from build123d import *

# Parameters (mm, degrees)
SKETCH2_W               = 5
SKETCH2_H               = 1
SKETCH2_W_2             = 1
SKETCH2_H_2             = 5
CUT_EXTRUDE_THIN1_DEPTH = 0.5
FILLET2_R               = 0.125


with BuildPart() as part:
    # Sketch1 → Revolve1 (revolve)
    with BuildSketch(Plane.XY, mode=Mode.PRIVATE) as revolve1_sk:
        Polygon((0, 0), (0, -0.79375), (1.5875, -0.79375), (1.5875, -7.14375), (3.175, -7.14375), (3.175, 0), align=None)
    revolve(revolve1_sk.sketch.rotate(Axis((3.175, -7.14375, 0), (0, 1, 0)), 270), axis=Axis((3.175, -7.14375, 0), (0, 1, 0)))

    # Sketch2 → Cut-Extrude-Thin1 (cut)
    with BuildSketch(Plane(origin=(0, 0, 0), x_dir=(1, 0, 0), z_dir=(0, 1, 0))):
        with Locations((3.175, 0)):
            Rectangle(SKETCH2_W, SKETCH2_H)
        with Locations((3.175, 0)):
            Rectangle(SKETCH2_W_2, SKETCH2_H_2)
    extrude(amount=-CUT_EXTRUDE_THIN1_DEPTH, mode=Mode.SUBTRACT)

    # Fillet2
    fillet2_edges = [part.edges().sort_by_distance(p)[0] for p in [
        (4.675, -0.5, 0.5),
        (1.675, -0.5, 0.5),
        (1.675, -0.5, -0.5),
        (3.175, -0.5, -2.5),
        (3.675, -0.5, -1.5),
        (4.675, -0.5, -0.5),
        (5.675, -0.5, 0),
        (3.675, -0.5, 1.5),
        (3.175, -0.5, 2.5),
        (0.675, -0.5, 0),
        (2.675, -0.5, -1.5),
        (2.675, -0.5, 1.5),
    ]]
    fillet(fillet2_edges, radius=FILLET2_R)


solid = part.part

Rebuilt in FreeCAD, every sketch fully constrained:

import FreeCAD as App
import Part
import Sketcher

V = App.Vector
Q = App.Units.Quantity


def edges_at(feature, points):
    """Names of the edges that pass closest to the given points."""
    edges = feature.Shape.Edges
    near = lambda p: min(range(len(edges)), key=lambda i: edges[i].distToShape(Part.Vertex(*p))[0])
    return sorted({f"Edge{near(p) + 1}" for p in points})

doc = App.newDocument("Part")
body = doc.addObject("PartDesign::Body", "Body")

# Sketch on XY plane
sketch1 = body.newObject("Sketcher::SketchObject", "Sketch")
sketch1.AttachmentSupport = (doc.getObject("XY_Plane"), [""])
sketch1.MapMode = "FlatFace"
sketch1.addGeometry(Part.LineSegment(V(0, 0, 0), V(0, -0.8, 0)), False)
sketch1.addGeometry(Part.LineSegment(V(0, -0.8, 0), V(1.6, -0.8, 0)), False)
sketch1.addGeometry(Part.LineSegment(V(1.6, -0.8, 0), V(1.6, -7.1, 0)), False)
sketch1.addGeometry(Part.LineSegment(V(1.6, -7.1, 0), V(3.2, -7.1, 0)), False)
sketch1.addGeometry(Part.LineSegment(V(3.2, -7.1, 0), V(3.2, 0, 0)), False)
sketch1.addGeometry(Part.LineSegment(V(3.2, 0, 0), V(0, 0, 0)), False)
sketch1.addGeometry(Part.LineSegment(V(3.2, -7.1, 0), V(3.2, 0, 0)), True)  # axis
sketch1.addConstraint(Sketcher.Constraint("Coincident", 0, 2, 1, 1))
sketch1.addConstraint(Sketcher.Constraint("Coincident", 1, 2, 2, 1))
sketch1.addConstraint(Sketcher.Constraint("Coincident", 2, 2, 3, 1))
sketch1.addConstraint(Sketcher.Constraint("Coincident", 3, 2, 4, 1))
sketch1.addConstraint(Sketcher.Constraint("Coincident", 4, 2, 5, 1))
sketch1.addConstraint(Sketcher.Constraint("Coincident", 5, 2, 0, 1))
sketch1.addConstraint(Sketcher.Constraint("Vertical", 0))
sketch1.addConstraint(Sketcher.Constraint("Horizontal", 1))
sketch1.addConstraint(Sketcher.Constraint("Vertical", 2))
sketch1.addConstraint(Sketcher.Constraint("Horizontal", 3))
sketch1.addConstraint(Sketcher.Constraint("Vertical", 4))
sketch1.addConstraint(Sketcher.Constraint("Horizontal", 5))
sketch1.addConstraint(Sketcher.Constraint("Vertical", 6))
sketch1.addConstraint(Sketcher.Constraint("Coincident", 5, 2, -1, 1))
sketch1.addConstraint(Sketcher.Constraint("Coincident", 6, 1, 3, 2))
sketch1.addConstraint(Sketcher.Constraint("PointOnObject", 6, 2, -1))
sketch1.addConstraint(Sketcher.Constraint("Equal", 1, 3))
sketch1.addConstraint(Sketcher.Constraint("DistanceY", 2, 2, 2, 1, Q("0.25 in")))
sketch1.addConstraint(Sketcher.Constraint("DistanceX", 1, 1, 1, 2, Q("0.0625 in")))
sketch1.addConstraint(Sketcher.Constraint("DistanceY", 0, 2, 0, 1, Q("0.03125 in")))
revolution = body.newObject("PartDesign::Revolution", "Revolution")
revolution.Profile = sketch1
revolution.ReferenceAxis = (sketch1, ["Axis0"])
revolution.Angle = 360

# Sketch on XZ plane
sketch2 = body.newObject("Sketcher::SketchObject", "Sketch001")
sketch2.AttachmentSupport = (doc.getObject("XZ_Plane"), [""])
sketch2.MapMode = "FlatFace"
sketch2.addGeometry(Part.LineSegment(V(0.7, -0.5, 0), V(0.7, 0.5, 0)), False)
sketch2.addGeometry(Part.LineSegment(V(0.7, 0.5, 0), V(2.7, 0.5, 0)), False)
sketch2.addGeometry(Part.LineSegment(V(2.7, 0.5, 0), V(2.7, 2.5, 0)), False)
sketch2.addGeometry(Part.LineSegment(V(2.7, 2.5, 0), V(3.7, 2.5, 0)), False)
sketch2.addGeometry(Part.LineSegment(V(3.7, 2.5, 0), V(3.7, 0.5, 0)), False)
sketch2.addGeometry(Part.LineSegment(V(3.7, 0.5, 0), V(5.7, 0.5, 0)), False)
sketch2.addGeometry(Part.LineSegment(V(5.7, 0.5, 0), V(5.7, -0.5, 0)), False)
sketch2.addGeometry(Part.LineSegment(V(5.7, -0.5, 0), V(3.7, -0.5, 0)), False)
sketch2.addGeometry(Part.LineSegment(V(3.7, -0.5, 0), V(3.7, -2.5, 0)), False)
sketch2.addGeometry(Part.LineSegment(V(3.7, -2.5, 0), V(2.7, -2.5, 0)), False)
sketch2.addGeometry(Part.LineSegment(V(2.7, -2.5, 0), V(2.7, -0.5, 0)), False)
sketch2.addGeometry(Part.LineSegment(V(2.7, -0.5, 0), V(0.7, -0.5, 0)), False)
sketch2.addConstraint(Sketcher.Constraint("Coincident", 0, 2, 1, 1))
sketch2.addConstraint(Sketcher.Constraint("Coincident", 1, 2, 2, 1))
sketch2.addConstraint(Sketcher.Constraint("Coincident", 2, 2, 3, 1))
sketch2.addConstraint(Sketcher.Constraint("Coincident", 3, 2, 4, 1))
sketch2.addConstraint(Sketcher.Constraint("Coincident", 4, 2, 5, 1))
sketch2.addConstraint(Sketcher.Constraint("Coincident", 5, 2, 6, 1))
sketch2.addConstraint(Sketcher.Constraint("Coincident", 6, 2, 7, 1))
sketch2.addConstraint(Sketcher.Constraint("Coincident", 7, 2, 8, 1))
sketch2.addConstraint(Sketcher.Constraint("Coincident", 8, 2, 9, 1))
sketch2.addConstraint(Sketcher.Constraint("Coincident", 9, 2, 10, 1))
sketch2.addConstraint(Sketcher.Constraint("Coincident", 10, 2, 11, 1))
sketch2.addConstraint(Sketcher.Constraint("Coincident", 11, 2, 0, 1))
sketch2.addConstraint(Sketcher.Constraint("Vertical", 0))
sketch2.addConstraint(Sketcher.Constraint("Horizontal", 1))
sketch2.addConstraint(Sketcher.Constraint("Vertical", 2))
sketch2.addConstraint(Sketcher.Constraint("Horizontal", 3))
sketch2.addConstraint(Sketcher.Constraint("Vertical", 4))
sketch2.addConstraint(Sketcher.Constraint("Horizontal", 5))
sketch2.addConstraint(Sketcher.Constraint("Vertical", 6))
sketch2.addConstraint(Sketcher.Constraint("Horizontal", 7))
sketch2.addConstraint(Sketcher.Constraint("Vertical", 8))
sketch2.addConstraint(Sketcher.Constraint("Horizontal", 9))
sketch2.addConstraint(Sketcher.Constraint("Vertical", 10))
sketch2.addConstraint(Sketcher.Constraint("Horizontal", 11))
sketch2.addConstraint(Sketcher.Constraint("Symmetric", 4, 2, 7, 2, -1))
sketch2.addConstraint(Sketcher.Constraint("Symmetric", 2, 2, 9, 2, -1))
sketch2.addConstraint(Sketcher.Constraint("Horizontal", 1, 2, 4, 2))
sketch2.addConstraint(Sketcher.Constraint("Horizontal", 7, 2, 10, 2))
sketch2.addConstraint(Sketcher.Constraint("Equal", 1, 5))
sketch2.addConstraint(Sketcher.Constraint("Equal", 9, 0))
sketch2.addConstraint(Sketcher.Constraint("Equal", 11, 2))
sketch2.addConstraint(Sketcher.Constraint("DistanceX", 1, 1, 1, 2, Q("2 mm")))
sketch2.addConstraint(Sketcher.Constraint("DistanceX", 3, 1, 3, 2, Q("1 mm")))
sketch2.addConstraint(Sketcher.Constraint("DistanceX", -1, 1, 0, 2, Q("0.675 mm")))
pocket1 = body.newObject("PartDesign::Pocket", "Pocket")
pocket1.Profile = sketch2
pocket1.Length = 0.5
pocket1.Reversed = True
doc.recompute()

fillet = body.newObject("PartDesign::Fillet", "Fillet")
fillet.Base = (pocket1, edges_at(pocket1, [
    (4.675, -0.5, 0.5),
    (1.675, -0.5, 0.5),
    (1.675, -0.5, -0.5),
    (3.175, -0.5, -2.5),
    (3.675, -0.5, -1.5),
    (4.675, -0.5, -0.5),
    (5.675, -0.5, 0),
    (3.675, -0.5, 1.5),
    (3.175, -0.5, 2.5),
    (0.675, -0.5, 0),
    (2.675, -0.5, -1.5),
    (2.675, -0.5, 1.5),
]))
fillet.Radius = 0.125

doc.recompute()
